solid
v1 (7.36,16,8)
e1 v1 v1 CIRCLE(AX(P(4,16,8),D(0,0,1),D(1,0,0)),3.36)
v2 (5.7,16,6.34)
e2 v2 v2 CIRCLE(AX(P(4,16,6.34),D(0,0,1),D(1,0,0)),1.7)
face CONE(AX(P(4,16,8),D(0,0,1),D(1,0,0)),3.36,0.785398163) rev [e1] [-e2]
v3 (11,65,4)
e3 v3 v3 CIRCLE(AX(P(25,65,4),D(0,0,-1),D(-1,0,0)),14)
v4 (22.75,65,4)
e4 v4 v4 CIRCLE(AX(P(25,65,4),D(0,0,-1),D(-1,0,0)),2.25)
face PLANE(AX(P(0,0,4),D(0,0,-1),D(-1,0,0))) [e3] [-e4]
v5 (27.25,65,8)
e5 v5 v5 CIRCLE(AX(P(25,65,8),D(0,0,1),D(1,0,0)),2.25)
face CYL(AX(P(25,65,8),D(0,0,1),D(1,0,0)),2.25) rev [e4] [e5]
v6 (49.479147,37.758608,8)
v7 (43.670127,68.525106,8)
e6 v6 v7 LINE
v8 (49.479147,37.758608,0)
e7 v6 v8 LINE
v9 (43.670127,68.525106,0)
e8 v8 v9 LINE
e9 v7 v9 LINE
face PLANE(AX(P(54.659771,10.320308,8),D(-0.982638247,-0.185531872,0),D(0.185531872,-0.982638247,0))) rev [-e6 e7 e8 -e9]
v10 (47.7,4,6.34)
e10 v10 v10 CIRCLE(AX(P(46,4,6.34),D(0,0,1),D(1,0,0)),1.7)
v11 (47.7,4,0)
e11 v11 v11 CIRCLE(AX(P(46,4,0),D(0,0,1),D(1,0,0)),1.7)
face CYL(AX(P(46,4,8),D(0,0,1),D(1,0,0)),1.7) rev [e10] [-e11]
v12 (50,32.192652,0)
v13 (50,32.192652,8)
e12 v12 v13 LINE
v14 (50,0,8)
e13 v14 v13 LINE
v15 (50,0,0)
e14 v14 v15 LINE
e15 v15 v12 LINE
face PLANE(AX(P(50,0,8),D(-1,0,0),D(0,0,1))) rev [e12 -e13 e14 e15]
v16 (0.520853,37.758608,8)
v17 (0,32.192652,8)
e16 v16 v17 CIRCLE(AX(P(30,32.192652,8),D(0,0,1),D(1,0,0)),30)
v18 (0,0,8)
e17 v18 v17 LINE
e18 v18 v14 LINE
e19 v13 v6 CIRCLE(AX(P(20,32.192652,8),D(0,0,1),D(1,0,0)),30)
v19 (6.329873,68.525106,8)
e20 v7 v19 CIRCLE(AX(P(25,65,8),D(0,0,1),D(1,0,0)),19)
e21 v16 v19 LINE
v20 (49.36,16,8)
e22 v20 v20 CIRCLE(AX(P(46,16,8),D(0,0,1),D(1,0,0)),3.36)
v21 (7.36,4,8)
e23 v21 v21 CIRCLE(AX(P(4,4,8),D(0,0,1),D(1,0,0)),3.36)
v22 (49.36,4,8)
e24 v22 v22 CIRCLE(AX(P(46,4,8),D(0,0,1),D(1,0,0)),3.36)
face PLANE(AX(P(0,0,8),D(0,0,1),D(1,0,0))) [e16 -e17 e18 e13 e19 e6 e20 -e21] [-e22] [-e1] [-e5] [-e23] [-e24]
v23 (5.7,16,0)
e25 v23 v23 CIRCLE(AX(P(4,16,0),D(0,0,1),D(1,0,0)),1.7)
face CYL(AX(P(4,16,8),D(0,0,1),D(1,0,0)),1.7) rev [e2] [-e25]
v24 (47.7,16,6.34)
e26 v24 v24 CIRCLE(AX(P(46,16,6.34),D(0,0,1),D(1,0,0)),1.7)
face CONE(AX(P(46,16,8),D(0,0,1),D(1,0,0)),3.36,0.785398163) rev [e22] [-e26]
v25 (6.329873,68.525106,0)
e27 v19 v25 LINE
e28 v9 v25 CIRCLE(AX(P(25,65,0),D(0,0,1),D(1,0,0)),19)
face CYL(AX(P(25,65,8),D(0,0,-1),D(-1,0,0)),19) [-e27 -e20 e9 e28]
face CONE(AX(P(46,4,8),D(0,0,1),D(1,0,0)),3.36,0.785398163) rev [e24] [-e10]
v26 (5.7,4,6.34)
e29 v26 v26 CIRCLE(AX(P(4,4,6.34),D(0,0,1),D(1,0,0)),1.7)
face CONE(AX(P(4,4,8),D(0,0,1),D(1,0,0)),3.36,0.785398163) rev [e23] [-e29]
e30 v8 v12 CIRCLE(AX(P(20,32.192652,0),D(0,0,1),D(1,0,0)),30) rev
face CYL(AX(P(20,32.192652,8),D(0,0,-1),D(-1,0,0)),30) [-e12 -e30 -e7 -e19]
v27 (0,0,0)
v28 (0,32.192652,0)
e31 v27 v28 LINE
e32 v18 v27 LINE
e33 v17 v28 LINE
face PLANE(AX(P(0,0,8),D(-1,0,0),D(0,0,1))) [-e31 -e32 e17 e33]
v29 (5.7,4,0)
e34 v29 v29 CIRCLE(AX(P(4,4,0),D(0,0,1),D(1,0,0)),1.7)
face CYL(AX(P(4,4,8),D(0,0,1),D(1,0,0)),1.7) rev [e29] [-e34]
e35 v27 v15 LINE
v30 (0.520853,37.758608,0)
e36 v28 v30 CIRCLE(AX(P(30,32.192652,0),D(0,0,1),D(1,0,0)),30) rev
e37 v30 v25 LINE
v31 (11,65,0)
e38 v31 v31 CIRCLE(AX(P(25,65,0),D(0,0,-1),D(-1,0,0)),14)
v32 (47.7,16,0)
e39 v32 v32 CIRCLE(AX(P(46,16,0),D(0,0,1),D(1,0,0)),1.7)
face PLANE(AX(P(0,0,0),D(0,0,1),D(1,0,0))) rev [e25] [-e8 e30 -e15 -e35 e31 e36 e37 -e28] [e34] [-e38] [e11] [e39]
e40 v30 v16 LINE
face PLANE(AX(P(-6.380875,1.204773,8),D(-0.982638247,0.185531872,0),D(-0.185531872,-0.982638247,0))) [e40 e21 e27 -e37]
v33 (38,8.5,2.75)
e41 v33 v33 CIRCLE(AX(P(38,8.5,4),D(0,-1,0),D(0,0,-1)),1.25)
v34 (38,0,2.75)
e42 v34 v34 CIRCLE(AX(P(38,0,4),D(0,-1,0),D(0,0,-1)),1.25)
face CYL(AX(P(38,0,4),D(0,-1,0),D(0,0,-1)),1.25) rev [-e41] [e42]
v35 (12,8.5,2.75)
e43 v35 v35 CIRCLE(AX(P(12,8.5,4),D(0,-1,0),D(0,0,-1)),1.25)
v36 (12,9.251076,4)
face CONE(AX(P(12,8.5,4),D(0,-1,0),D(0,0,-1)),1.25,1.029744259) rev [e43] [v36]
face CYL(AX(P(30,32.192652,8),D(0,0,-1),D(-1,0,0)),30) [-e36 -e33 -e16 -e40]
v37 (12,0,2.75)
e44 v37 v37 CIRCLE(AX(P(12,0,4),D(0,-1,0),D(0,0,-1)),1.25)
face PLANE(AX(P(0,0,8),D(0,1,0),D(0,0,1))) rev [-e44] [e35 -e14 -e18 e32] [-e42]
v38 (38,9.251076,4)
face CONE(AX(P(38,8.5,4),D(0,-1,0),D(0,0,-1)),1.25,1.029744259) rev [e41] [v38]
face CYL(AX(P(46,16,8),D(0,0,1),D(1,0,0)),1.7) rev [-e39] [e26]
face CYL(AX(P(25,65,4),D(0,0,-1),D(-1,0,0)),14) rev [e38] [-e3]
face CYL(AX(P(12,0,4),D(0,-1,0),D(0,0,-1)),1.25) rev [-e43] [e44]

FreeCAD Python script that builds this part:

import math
import FreeCAD as App
import Part
import Sketcher

V = App.Vector


def edges_at(feature, points):
    """Names of the edges that pass closest to the given points."""
    edges = feature.Shape.Edges
    near = lambda p: min(range(len(edges)), key=lambda i: edges[i].distToShape(Part.Vertex(*p))[0])
    return sorted({f"Edge{near(p) + 1}" for p in points})

doc = App.newDocument("Part")
params = doc.addObject("Spreadsheet::Sheet", "Params")
for row, (alias, value) in enumerate([
    ("sketch1_radius", "19 mm"),
    ("sketch1_width", "50 mm"),
    ("sketch1_height", "35 mm"),
    ("pad1_length", "8 mm"),
    ("fillet_radius", "30 mm"),
    ("sketch2_diameter", "28 mm"),
    ("pocket1_length", "4 mm"),
    ("sketch3_diameter", "4.5 mm"),
    ("hole_diameter", "4.5 mm"),
    ("sketch4_diameter", "3.4 mm"),
    ("hole2_diameter", "3.4 mm"),
    ("hole2_depth", "8 mm"),
    ("hole2_csink_diameter", "6.72 mm"),
    ("sketch5_diameter", "2.5 mm"),
    ("hole3_diameter", "2.5 mm"),
    ("hole3_depth", "8.5 mm"),
], start=1):
    params.set(f"A{row}", alias)
    params.set(f"B{row}", "=" + value)
    params.setAlias(f"B{row}", alias)

body = doc.addObject("PartDesign::Body", "Body")

# Sketch on XY plane
sketch1 = doc.addObject("Sketcher::SketchObject", "Sketch")
body.addObject(sketch1)
sketch1.AttachmentSupport = (doc.XY_Plane, [""])
sketch1.MapMode = "FlatFace"
sketch1.addGeometry(Part.LineSegment(V(0, 35, 0), V(0, 0, 0)), False)
sketch1.addGeometry(Part.LineSegment(V(0, 0, 0), V(50, 0, 0)), False)
sketch1.addGeometry(Part.LineSegment(V(50, 0, 0), V(50, 35, 0)), False)
sketch1.addGeometry(Part.LineSegment(V(50, 35, 0), V(44, 69, 0)), False)
sketch1.addGeometry(Part.ArcOfCircle(Part.Circle(V(25, 65, 0), V(0, 0, 1), 19), math.radians(11), math.radians(169)), False)
sketch1.addGeometry(Part.LineSegment(V(6, 69, 0), V(0, 35, 0)), False)
sketch1.addConstraint(Sketcher.Constraint("Coincident", 0, 2, 1, 1))
sketch1.addConstraint(Sketcher.Constraint("Coincident", 1, 2, 2, 1))
sketch1.addConstraint(Sketcher.Constraint("Coincident", 2, 2, 3, 1))
sketch1.addConstraint(Sketcher.Constraint("Tangent", 3, 2, 4, 1))
sketch1.addConstraint(Sketcher.Constraint("Tangent", 4, 2, 5, 1))
sketch1.addConstraint(Sketcher.Constraint("Coincident", 5, 2, 0, 1))
sketch1.addConstraint(Sketcher.Constraint("Vertical", 0))
sketch1.addConstraint(Sketcher.Constraint("Horizontal", 1))
sketch1.addConstraint(Sketcher.Constraint("Vertical", 2))
sketch1.addConstraint(Sketcher.Constraint("Coincident", 0, 2, -1, 1))
sketch1.addConstraint(Sketcher.Constraint("Horizontal", 3, 2, 4, 2))
sketch1.addConstraint(Sketcher.Constraint("Horizontal", 2, 2, 5, 2))
sketch1.addConstraint(Sketcher.Constraint("Radius", 4, 19.0))
sketch1.addConstraint(Sketcher.Constraint("DistanceX", 1, 1, 1, 2, 50.0))
sketch1.addConstraint(Sketcher.Constraint("DistanceY", 0, 2, 0, 1, 35.0))
sketch1.addConstraint(Sketcher.Constraint("DistanceY", -1, 1, 4, 3, 65.0))
sketch1.setExpression("Constraints[12]", "Params.sketch1_radius")
sketch1.setExpression("Constraints[13]", "Params.sketch1_width")
sketch1.setExpression("Constraints[14]", "Params.sketch1_height")
pad1 = doc.addObject("PartDesign::Pad", "Pad")
body.addObject(pad1)
pad1.Profile = sketch1
pad1.setExpression("Length", "Params.pad1_length")
doc.recompute()

fillet = doc.addObject("PartDesign::Fillet", "Fillet")
body.addObject(fillet)
fillet.Base = (pad1, edges_at(pad1, [(50, 35, 4), (0, 35, 4)]))
fillet.setExpression("Radius", "Params.fillet_radius")

# Sketch on XY plane
sketch2 = doc.addObject("Sketcher::SketchObject", "Sketch001")
body.addObject(sketch2)
sketch2.AttachmentSupport = (doc.XY_Plane, [""])
sketch2.MapMode = "FlatFace"
sketch2.addGeometry(Part.Circle(V(25, 65, 0), V(0, 0, 1), 14), False)
sketch2.addConstraint(Sketcher.Constraint("Diameter", 0, 28.0))
sketch2.addConstraint(Sketcher.Constraint("DistanceX", -1, 1, 0, 3, 25.0))
sketch2.addConstraint(Sketcher.Constraint("DistanceY", -1, 1, 0, 3, 65.0))
sketch2.setExpression("Constraints[0]", "Params.sketch2_diameter")
pocket1 = doc.addObject("PartDesign::Pocket", "Pocket")
body.addObject(pocket1)
pocket1.Profile = sketch2
pocket1.setExpression("Length", "Params.pocket1_length")
pocket1.Reversed = True

# Sketch on XY plane
sketch3 = doc.addObject("Sketcher::SketchObject", "Sketch002")
body.addObject(sketch3)
sketch3.AttachmentSupport = (doc.XY_Plane, [""])
sketch3.MapMode = "FlatFace"
sketch3.AttachmentOffset = App.Placement(V(0, 0, 8), App.Rotation())
sketch3.addGeometry(Part.Circle(V(25, 65, 0), V(0, 0, 1), 2.2), False)
sketch3.addConstraint(Sketcher.Constraint("Diameter", 0, 4.5))
sketch3.addConstraint(Sketcher.Constraint("DistanceX", -1, 1, 0, 3, 25.0))
sketch3.addConstraint(Sketcher.Constraint("DistanceY", -1, 1, 0, 3, 65.0))
sketch3.setExpression("Constraints[0]", "Params.sketch3_diameter")
doc.recompute()
hole = doc.addObject("PartDesign::Hole", "Hole")
body.addObject(hole)
hole.Profile = sketch3
hole.ThreadType = "None"
hole.setExpression("Diameter", "Params.hole_diameter")
hole.DepthType = "ThroughAll"

# Sketch on XY plane
sketch4 = doc.addObject("Sketcher::SketchObject", "Sketch003")
body.addObject(sketch4)
sketch4.AttachmentSupport = (doc.XY_Plane, [""])
sketch4.MapMode = "FlatFace"
sketch4.AttachmentOffset = App.Placement(V(0, 0, 8), App.Rotation())
sketch4.addGeometry(Part.Circle(V(4, 16, 0), V(0, 0, 1), 1.7), False)
sketch4.addGeometry(Part.Circle(V(4, 4, 0), V(0, 0, 1), 1.7), False)
sketch4.addGeometry(Part.Circle(V(46, 4, 0), V(0, 0, 1), 1.7), False)
sketch4.addGeometry(Part.Circle(V(46, 16, 0), V(0, 0, 1), 1.7), False)
sketch4.addConstraint(Sketcher.Constraint("Equal", 0, 1))
sketch4.addConstraint(Sketcher.Constraint("Equal", 1, 2))
sketch4.addConstraint(Sketcher.Constraint("Equal", 2, 3))
sketch4.addConstraint(Sketcher.Constraint("Horizontal", 1, 3, 2, 3))
sketch4.addConstraint(Sketcher.Constraint("Horizontal", 0, 3, 3, 3))
sketch4.addConstraint(Sketcher.Constraint("Vertical", 0, 3, 1, 3))
sketch4.addConstraint(Sketcher.Constraint("Vertical", 2, 3, 3, 3))
sketch4.addConstraint(Sketcher.Constraint("Diameter", 0, 3.4))
sketch4.addConstraint(Sketcher.Constraint("DistanceX", -1, 1, 0, 3, 4.0))
sketch4.addConstraint(Sketcher.Constraint("DistanceY", -1, 1, 0, 3, 16.0))
sketch4.addConstraint(Sketcher.Constraint("DistanceY", -1, 1, 1, 3, 4.0))
sketch4.addConstraint(Sketcher.Constraint("DistanceX", -1, 1, 2, 3, 46.0))
sketch4.setExpression("Constraints[7]", "Params.sketch4_diameter")
doc.recompute()
hole2 = doc.addObject("PartDesign::Hole", "Hole001")
body.addObject(hole2)
hole2.Profile = sketch4
hole2.ThreadType = "None"
hole2.setExpression("Diameter", "Params.hole2_diameter")
hole2.DepthType = "Dimension"
hole2.setExpression("Depth", "Params.hole2_depth")
hole2.DrillPoint = "Flat"
hole2.HoleCutType = "Countersink"
hole2.setExpression("HoleCutDiameter", "Params.hole2_csink_diameter")
hole2.HoleCutCountersinkAngle = 90

# Sketch on XZ plane
sketch5 = doc.addObject("Sketcher::SketchObject", "Sketch004")
body.addObject(sketch5)
sketch5.AttachmentSupport = (doc.XZ_Plane, [""])
sketch5.MapMode = "FlatFace"
sketch5.addGeometry(Part.Circle(V(38, 4, 0), V(0, 0, 1), 1.2), False)
sketch5.addGeometry(Part.Circle(V(12, 4, 0), V(0, 0, 1), 1.2), False)
sketch5.addConstraint(Sketcher.Constraint("Equal", 0, 1))
sketch5.addConstraint(Sketcher.Constraint("Horizontal", 0, 3, 1, 3))
sketch5.addConstraint(Sketcher.Constraint("Diameter", 0, 2.5))
sketch5.addConstraint(Sketcher.Constraint("DistanceX", -1, 1, 0, 3, 38.0))
sketch5.addConstraint(Sketcher.Constraint("DistanceY", -1, 1, 0, 3, 4.0))
sketch5.addConstraint(Sketcher.Constraint("DistanceX", -1, 1, 1, 3, 12.0))
sketch5.setExpression("Constraints[2]", "Params.sketch5_diameter")
doc.recompute()
hole3 = doc.addObject("PartDesign::Hole", "Hole002")
body.addObject(hole3)
hole3.Profile = sketch5
hole3.ThreadType = "None"
hole3.setExpression("Diameter", "Params.hole3_diameter")
hole3.DepthType = "Dimension"
hole3.setExpression("Depth", "Params.hole3_depth")
hole3.DrillPoint = "Angled"
hole3.DrillPointAngle = 118

doc.recompute()
